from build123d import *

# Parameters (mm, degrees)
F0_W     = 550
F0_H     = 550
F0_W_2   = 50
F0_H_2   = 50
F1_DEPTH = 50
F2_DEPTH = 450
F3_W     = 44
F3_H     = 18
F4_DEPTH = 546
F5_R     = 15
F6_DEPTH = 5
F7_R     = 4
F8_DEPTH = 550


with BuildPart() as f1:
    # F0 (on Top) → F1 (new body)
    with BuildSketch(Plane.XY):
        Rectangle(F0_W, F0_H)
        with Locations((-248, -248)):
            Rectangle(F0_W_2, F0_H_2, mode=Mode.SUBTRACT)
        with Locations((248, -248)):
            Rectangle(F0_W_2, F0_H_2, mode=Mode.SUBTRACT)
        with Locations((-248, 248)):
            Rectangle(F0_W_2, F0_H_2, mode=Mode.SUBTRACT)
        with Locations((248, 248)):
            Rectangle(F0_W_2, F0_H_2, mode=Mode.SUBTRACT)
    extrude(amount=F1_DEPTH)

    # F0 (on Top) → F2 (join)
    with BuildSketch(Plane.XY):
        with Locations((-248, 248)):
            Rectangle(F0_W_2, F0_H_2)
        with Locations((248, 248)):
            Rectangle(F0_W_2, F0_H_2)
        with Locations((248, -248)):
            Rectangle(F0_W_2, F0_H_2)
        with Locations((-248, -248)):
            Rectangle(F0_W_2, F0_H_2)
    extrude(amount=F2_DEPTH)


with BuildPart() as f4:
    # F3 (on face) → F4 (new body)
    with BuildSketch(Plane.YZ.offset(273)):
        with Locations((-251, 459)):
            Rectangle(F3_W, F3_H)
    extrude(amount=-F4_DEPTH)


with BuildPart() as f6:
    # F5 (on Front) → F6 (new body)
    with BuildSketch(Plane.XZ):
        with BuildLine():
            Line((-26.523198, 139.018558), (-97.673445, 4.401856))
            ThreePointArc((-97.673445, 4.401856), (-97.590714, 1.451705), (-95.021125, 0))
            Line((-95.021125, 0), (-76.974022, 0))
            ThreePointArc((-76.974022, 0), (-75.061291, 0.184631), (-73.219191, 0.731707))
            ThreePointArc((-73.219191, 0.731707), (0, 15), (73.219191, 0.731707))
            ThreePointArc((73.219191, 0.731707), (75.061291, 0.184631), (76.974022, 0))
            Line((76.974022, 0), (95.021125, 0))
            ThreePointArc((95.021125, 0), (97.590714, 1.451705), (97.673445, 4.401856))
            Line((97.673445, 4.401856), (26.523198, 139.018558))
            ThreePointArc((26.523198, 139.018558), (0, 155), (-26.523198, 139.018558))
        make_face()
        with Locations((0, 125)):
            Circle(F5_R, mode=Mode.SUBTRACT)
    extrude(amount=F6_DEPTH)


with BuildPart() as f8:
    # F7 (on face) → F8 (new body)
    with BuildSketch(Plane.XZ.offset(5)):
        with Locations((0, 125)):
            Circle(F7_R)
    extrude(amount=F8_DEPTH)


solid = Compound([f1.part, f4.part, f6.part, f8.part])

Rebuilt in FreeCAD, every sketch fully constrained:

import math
import FreeCAD as App
import Part
import Sketcher

V = App.Vector

doc = App.newDocument("Part")
body = doc.addObject("PartDesign::Body", "Body")

sketch1 = doc.addObject("Sketcher::SketchObject", "Sketch")
body.addObject(sketch1)
sketch1.AttachmentSupport = (doc.XY_Plane, [""])
sketch1.MapMode = "FlatFace"
sketch1.addGeometry(Part.LineSegment(V(-275, 275, 0), V(-275, -275, 0)), False)
sketch1.addGeometry(Part.LineSegment(V(-275, -275, 0), V(275, -275, 0)), False)
sketch1.addGeometry(Part.LineSegment(V(275, -275, 0), V(275, 275, 0)), False)
sketch1.addGeometry(Part.LineSegment(V(275, 275, 0), V(-275, 275, 0)), False)
sketch1.addGeometry(Part.LineSegment(V(-223, -273, 0), V(-273, -273, 0)), False)
sketch1.addGeometry(Part.LineSegment(V(-273, -273, 0), V(-273, -223, 0)), False)
sketch1.addGeometry(Part.LineSegment(V(-273, -223, 0), V(-223, -223, 0)), False)
sketch1.addGeometry(Part.LineSegment(V(-223, -223, 0), V(-223, -273, 0)), False)
sketch1.addGeometry(Part.LineSegment(V(273, -273, 0), V(223, -273, 0)), False)
sketch1.addGeometry(Part.LineSegment(V(223, -273, 0), V(223, -223, 0)), False)
sketch1.addGeometry(Part.LineSegment(V(223, -223, 0), V(273, -223, 0)), False)
sketch1.addGeometry(Part.LineSegment(V(273, -223, 0), V(273, -273, 0)), False)
sketch1.addGeometry(Part.LineSegment(V(-223, 223, 0), V(-273, 223, 0)), False)
sketch1.addGeometry(Part.LineSegment(V(-273, 223, 0), V(-273, 273, 0)), False)
sketch1.addGeometry(Part.LineSegment(V(-273, 273, 0), V(-223, 273, 0)), False)
sketch1.addGeometry(Part.LineSegment(V(-223, 273, 0), V(-223, 223, 0)), False)
sketch1.addGeometry(Part.LineSegment(V(273, 223, 0), V(223, 223, 0)), False)
sketch1.addGeometry(Part.LineSegment(V(223, 223, 0), V(223, 273, 0)), False)
sketch1.addGeometry(Part.LineSegment(V(223, 273, 0), V(273, 273, 0)), False)
sketch1.addGeometry(Part.LineSegment(V(273, 273, 0), V(273, 223, 0)), False)
sketch1.addConstraint(Sketcher.Constraint("Coincident", 0, 2, 1, 1))
sketch1.addConstraint(Sketcher.Constraint("Coincident", 1, 2, 2, 1))
sketch1.addConstraint(Sketcher.Constraint("Coincident", 2, 2, 3, 1))
sketch1.addConstraint(Sketcher.Constraint("Coincident", 3, 2, 0, 1))
sketch1.addConstraint(Sketcher.Constraint("Coincident", 4, 2, 5, 1))
sketch1.addConstraint(Sketcher.Constraint("Coincident", 5, 2, 6, 1))
sketch1.addConstraint(Sketcher.Constraint("Coincident", 6, 2, 7, 1))
sketch1.addConstraint(Sketcher.Constraint("Coincident", 7, 2, 4, 1))
sketch1.addConstraint(Sketcher.Constraint("Coincident", 8, 2, 9, 1))
sketch1.addConstraint(Sketcher.Constraint("Coincident", 9, 2, 10, 1))
sketch1.addConstraint(Sketcher.Constraint("Coincident", 10, 2, 11, 1))
sketch1.addConstraint(Sketcher.Constraint("Coincident", 11, 2, 8, 1))
sketch1.addConstraint(Sketcher.Constraint("Coincident", 12, 2, 13, 1))
sketch1.addConstraint(Sketcher.Constraint("Coincident", 13, 2, 14, 1))
sketch1.addConstraint(Sketcher.Constraint("Coincident", 14, 2, 15, 1))
sketch1.addConstraint(Sketcher.Constraint("Coincident", 15, 2, 12, 1))
sketch1.addConstraint(Sketcher.Constraint("Coincident", 16, 2, 17, 1))
sketch1.addConstraint(Sketcher.Constraint("Coincident", 17, 2, 18, 1))
sketch1.addConstraint(Sketcher.Constraint("Coincident", 18, 2, 19, 1))
sketch1.addConstraint(Sketcher.Constraint("Coincident", 19, 2, 16, 1))
sketch1.addConstraint(Sketcher.Constraint("Vertical", 0))
sketch1.addConstraint(Sketcher.Constraint("Horizontal", 1))
sketch1.addConstraint(Sketcher.Constraint("Vertical", 2))
sketch1.addConstraint(Sketcher.Constraint("Horizontal", 3))
sketch1.addConstraint(Sketcher.Constraint("Horizontal", 4))
sketch1.addConstraint(Sketcher.Constraint("Vertical", 5))
sketch1.addConstraint(Sketcher.Constraint("Horizontal", 6))
sketch1.addConstraint(Sketcher.Constraint("Vertical", 7))
sketch1.addConstraint(Sketcher.Constraint("Horizontal", 8))
sketch1.addConstraint(Sketcher.Constraint("Vertical", 9))
sketch1.addConstraint(Sketcher.Constraint("Horizontal", 10))
sketch1.addConstraint(Sketcher.Constraint("Vertical", 11))
sketch1.addConstraint(Sketcher.Constraint("Horizontal", 12))
sketch1.addConstraint(Sketcher.Constraint("Vertical", 13))
sketch1.addConstraint(Sketcher.Constraint("Horizontal", 14))
sketch1.addConstraint(Sketcher.Constraint("Vertical", 15))
sketch1.addConstraint(Sketcher.Constraint("Horizontal", 16))
sketch1.addConstraint(Sketcher.Constraint("Vertical", 17))
sketch1.addConstraint(Sketcher.Constraint("Horizontal", 18))
sketch1.addConstraint(Sketcher.Constraint("Vertical", 19))
sketch1.addConstraint(Sketcher.Constraint("Symmetric", 0, 2, 2, 2, -1, 1))
sketch1.addConstraint(Sketcher.Constraint("Symmetric", 10, 2, 12, 2, -1, 1))
sketch1.addConstraint(Sketcher.Constraint("Symmetric", 8, 2, 14, 2, -1, 1))
sketch1.addConstraint(Sketcher.Constraint("Symmetric", 6, 2, 16, 2, -1, 1))
sketch1.addConstraint(Sketcher.Constraint("Symmetric", 4, 2, 18, 2, -1, 1))
sketch1.addConstraint(Sketcher.Constraint("Symmetric", 7, 2, 8, 2, -2))
sketch1.addConstraint(Sketcher.Constraint("Symmetric", 5, 2, 10, 2, -2))
sketch1.addConstraint(Sketcher.Constraint("Equal", 3, 0))
sketch1.addConstraint(Sketcher.Constraint("Equal", 18, 5))
sketch1.addConstraint(Sketcher.Constraint("DistanceX", 1, 1, 1, 2, 550.0))
sketch1.addConstraint(Sketcher.Constraint("DistanceX", 4, 2, 4, 1, 50.0))
sketch1.addConstraint(Sketcher.Constraint("DistanceX", 4, 2, -1, 1, 273.0))
sketch1.addConstraint(Sketcher.Constraint("DistanceY", 4, 2, -1, 1, 273.0))
pad1 = doc.addObject("PartDesign::Pad", "Pad")
body.addObject(pad1)
pad1.Profile = sketch1
pad1.Length = 50

sketch2 = doc.addObject("Sketcher::SketchObject", "Sketch001")
body.addObject(sketch2)
sketch2.AttachmentSupport = (doc.XY_Plane, [""])
sketch2.MapMode = "FlatFace"
sketch2.addGeometry(Part.LineSegment(V(-273, 273, 0), V(-273, 223, 0)), False)
sketch2.addGeometry(Part.LineSegment(V(-273, 223, 0), V(-223, 223, 0)), False)
sketch2.addGeometry(Part.LineSegment(V(-223, 223, 0), V(-223, 273, 0)), False)
sketch2.addGeometry(Part.LineSegment(V(-223, 273, 0), V(-273, 273, 0)), False)
sketch2.addGeometry(Part.LineSegment(V(223, 273, 0), V(223, 223, 0)), False)
sketch2.addGeometry(Part.LineSegment(V(223, 223, 0), V(273, 223, 0)), False)
sketch2.addGeometry(Part.LineSegment(V(273, 223, 0), V(273, 273, 0)), False)
sketch2.addGeometry(Part.LineSegment(V(273, 273, 0), V(223, 273, 0)), False)
sketch2.addGeometry(Part.LineSegment(V(223, -223, 0), V(223, -273, 0)), False)
sketch2.addGeometry(Part.LineSegment(V(223, -273, 0), V(273, -273, 0)), False)
sketch2.addGeometry(Part.LineSegment(V(273, -273, 0), V(273, -223, 0)), False)
sketch2.addGeometry(Part.LineSegment(V(273, -223, 0), V(223, -223, 0)), False)
sketch2.addGeometry(Part.LineSegment(V(-273, -223, 0), V(-273, -273, 0)), False)
sketch2.addGeometry(Part.LineSegment(V(-273, -273, 0), V(-223, -273, 0)), False)
sketch2.addGeometry(Part.LineSegment(V(-223, -273, 0), V(-223, -223, 0)), False)
sketch2.addGeometry(Part.LineSegment(V(-223, -223, 0), V(-273, -223, 0)), False)
sketch2.addConstraint(Sketcher.Constraint("Coincident", 0, 2, 1, 1))
sketch2.addConstraint(Sketcher.Constraint("Coincident", 1, 2, 2, 1))
sketch2.addConstraint(Sketcher.Constraint("Coincident", 2, 2, 3, 1))
sketch2.addConstraint(Sketcher.Constraint("Coincident", 3, 2, 0, 1))
sketch2.addConstraint(Sketcher.Constraint("Coincident", 4, 2, 5, 1))
sketch2.addConstraint(Sketcher.Constraint("Coincident", 5, 2, 6, 1))
sketch2.addConstraint(Sketcher.Constraint("Coincident", 6, 2, 7, 1))
sketch2.addConstraint(Sketcher.Constraint("Coincident", 7, 2, 4, 1))
sketch2.addConstraint(Sketcher.Constraint("Coincident", 8, 2, 9, 1))
sketch2.addConstraint(Sketcher.Constraint("Coincident", 9, 2, 10, 1))
sketch2.addConstraint(Sketcher.Constraint("Coincident", 10, 2, 11, 1))
sketch2.addConstraint(Sketcher.Constraint("Coincident", 11, 2, 8, 1))
sketch2.addConstraint(Sketcher.Constraint("Coincident", 12, 2, 13, 1))
sketch2.addConstraint(Sketcher.Constraint("Coincident", 13, 2, 14, 1))
sketch2.addConstraint(Sketcher.Constraint("Coincident", 14, 2, 15, 1))
sketch2.addConstraint(Sketcher.Constraint("Coincident", 15, 2, 12, 1))
sketch2.addConstraint(Sketcher.Constraint("Vertical", 0))
sketch2.addConstraint(Sketcher.Constraint("Horizontal", 1))
sketch2.addConstraint(Sketcher.Constraint("Vertical", 2))
sketch2.addConstraint(Sketcher.Constraint("Horizontal", 3))
sketch2.addConstraint(Sketcher.Constraint("Vertical", 4))
sketch2.addConstraint(Sketcher.Constraint("Horizontal", 5))
sketch2.addConstraint(Sketcher.Constraint("Vertical", 6))
sketch2.addConstraint(Sketcher.Constraint("Horizontal", 7))
sketch2.addConstraint(Sketcher.Constraint("Vertical", 8))
sketch2.addConstraint(Sketcher.Constraint("Horizontal", 9))
sketch2.addConstraint(Sketcher.Constraint("Vertical", 10))
sketch2.addConstraint(Sketcher.Constraint("Horizontal", 11))
sketch2.addConstraint(Sketcher.Constraint("Vertical", 12))
sketch2.addConstraint(Sketcher.Constraint("Horizontal", 13))
sketch2.addConstraint(Sketcher.Constraint("Vertical", 14))
sketch2.addConstraint(Sketcher.Constraint("Horizontal", 15))
sketch2.addConstraint(Sketcher.Constraint("Symmetric", 2, 2, 8, 2, -1, 1))
sketch2.addConstraint(Sketcher.Constraint("Symmetric", 0, 2, 10, 2, -1, 1))
sketch2.addConstraint(Sketcher.Constraint("Symmetric", 6, 2, 12, 2, -1, 1))
sketch2.addConstraint(Sketcher.Constraint("Symmetric", 4, 2, 14, 2, -1, 1))
sketch2.addConstraint(Sketcher.Constraint("Symmetric", 1, 2, 4, 2, -2))
sketch2.addConstraint(Sketcher.Constraint("Symmetric", 3, 2, 6, 2, -2))
sketch2.addConstraint(Sketcher.Constraint("Equal", 15, 0))
sketch2.addConstraint(Sketcher.Constraint("DistanceX", 1, 1, 1, 2, 50.0))
sketch2.addConstraint(Sketcher.Constraint("DistanceX", 0, 2, -1, 1, 273.0))
sketch2.addConstraint(Sketcher.Constraint("DistanceY", -1, 1, 0, 2, 223.0))
pad2 = doc.addObject("PartDesign::Pad", "Pad001")
body.addObject(pad2)
pad2.Profile = sketch2
pad2.Length = 450
body2 = doc.addObject("PartDesign::Body", "Body001")

sketch3 = doc.addObject("Sketcher::SketchObject", "Sketch002")
body2.addObject(sketch3)
sketch3.AttachmentSupport = (doc.getObject("YZ_Plane001"), [""])
sketch3.MapMode = "FlatFace"
sketch3.AttachmentOffset = App.Placement(V(0, 0, 273), App.Rotation())
sketch3.addGeometry(Part.LineSegment(V(-273, 468, 0), V(-273, 450, 0)), False)
sketch3.addGeometry(Part.LineSegment(V(-273, 450, 0), V(-229, 450, 0)), False)
sketch3.addGeometry(Part.LineSegment(V(-229, 450, 0), V(-229, 468, 0)), False)
sketch3.addGeometry(Part.LineSegment(V(-229, 468, 0), V(-273, 468, 0)), False)
sketch3.addConstraint(Sketcher.Constraint("Coincident", 0, 2, 1, 1))
sketch3.addConstraint(Sketcher.Constraint("Coincident", 1, 2, 2, 1))
sketch3.addConstraint(Sketcher.Constraint("Coincident", 2, 2, 3, 1))
sketch3.addConstraint(Sketcher.Constraint("Coincident", 3, 2, 0, 1))
sketch3.addConstraint(Sketcher.Constraint("Vertical", 0))
sketch3.addConstraint(Sketcher.Constraint("Horizontal", 1))
sketch3.addConstraint(Sketcher.Constraint("Vertical", 2))
sketch3.addConstraint(Sketcher.Constraint("Horizontal", 3))
sketch3.addConstraint(Sketcher.Constraint("DistanceX", 1, 1, 1, 2, 44.0))
sketch3.addConstraint(Sketcher.Constraint("DistanceY", 0, 2, 0, 1, 18.0))
sketch3.addConstraint(Sketcher.Constraint("DistanceX", 0, 2, -1, 1, 273.0))
sketch3.addConstraint(Sketcher.Constraint("DistanceY", -1, 1, 0, 2, 450.0))
pad3 = doc.addObject("PartDesign::Pad", "Pad002")
body2.addObject(pad3)
pad3.Profile = sketch3
pad3.Length = 546
pad3.Reversed = True
body3 = doc.addObject("PartDesign::Body", "Body002")

sketch4 = doc.addObject("Sketcher::SketchObject", "Sketch003")
body3.addObject(sketch4)
sketch4.AttachmentSupport = (doc.getObject("XZ_Plane002"), [""])
sketch4.MapMode = "FlatFace"
sketch4.addGeometry(Part.LineSegment(V(-26.523198, 139.018558, 0), V(-97.673445, 4.401856, 0)), False)
sketch4.addGeometry(Part.ArcOfCircle(Part.Circle(V(-95.021126, 2.999999, 0), V(0, 0, 1), 2.999999), math.radians(152.141755), math.radians(270.000025)), False)
sketch4.addGeometry(Part.LineSegment(V(-95.021125, 0, 0), V(-76.974022, 0, 0)), False)
sketch4.addGeometry(Part.ArcOfCircle(Part.Circle(V(-76.974019, 9.999992, 0), V(0, 0, 1), 9.999992), math.radians(-90.000017), math.radians(-67.945826)), False)
sketch4.addGeometry(Part.ArcOfCircle(Part.Circle(V(0, -179.999995, 0), V(0, 0, 1), 194.999995), math.radians(67.945829), math.radians(112.054171)), False)
sketch4.addGeometry(Part.ArcOfCircle(Part.Circle(V(76.974019, 9.999992, 0), V(0, 0, 1), 9.999992), math.radians(-112.054174), math.radians(-89.999983)), False)
sketch4.addGeometry(Part.LineSegment(V(76.974022, 0, 0), V(95.021125, 0, 0)), False)
sketch4.addGeometry(Part.ArcOfCircle(Part.Circle(V(95.021126, 2.999999, 0), V(0, 0, 1), 2.999999), math.radians(-90.000025), math.radians(27.858245)), False)
sketch4.addGeometry(Part.LineSegment(V(97.673445, 4.401856, 0), V(26.523198, 139.018558, 0)), False)
sketch4.addGeometry(Part.ArcOfCircle(Part.Circle(V(0, 125, 0), V(0, 0, 1), 30), math.radians(27.858221), math.radians(152.141779)), False)
sketch4.addGeometry(Part.Circle(V(0, 125, 0), V(0, 0, 1), 15), False)
sketch4.addConstraint(Sketcher.Constraint("Tangent", 0, 2, 1, 1))
sketch4.addConstraint(Sketcher.Constraint("Tangent", 1, 2, 2, 1))
sketch4.addConstraint(Sketcher.Constraint("Tangent", 2, 2, 3, 1))
sketch4.addConstraint(Sketcher.Constraint("Tangent", 3, 2, 4, 2))
sketch4.addConstraint(Sketcher.Constraint("Tangent", 4, 1, 5, 1))
sketch4.addConstraint(Sketcher.Constraint("Tangent", 5, 2, 6, 1))
sketch4.addConstraint(Sketcher.Constraint("Tangent", 6, 2, 7, 1))
sketch4.addConstraint(Sketcher.Constraint("Tangent", 7, 2, 8, 1))
sketch4.addConstraint(Sketcher.Constraint("Tangent", 8, 2, 9, 1))
sketch4.addConstraint(Sketcher.Constraint("Tangent", 9, 2, 0, 1))
sketch4.addConstraint(Sketcher.Constraint("Horizontal", 2))
sketch4.addConstraint(Sketcher.Constraint("Horizontal", 6))
sketch4.addConstraint(Sketcher.Constraint("Coincident", 10, 3, 9, 3))
sketch4.addConstraint(Sketcher.Constraint("Equal", 3, 5))
sketch4.addConstraint(Sketcher.Constraint("Equal", 1, 7))
sketch4.addConstraint(Sketcher.Constraint("Symmetric", 2, 2, 5, 2, -1, 1))
sketch4.addConstraint(Sketcher.Constraint("Symmetric", 1, 3, 7, 3, -2))
sketch4.addConstraint(Sketcher.Constraint("PointOnObject", 9, 3, -2))
sketch4.addConstraint(Sketcher.Constraint("Diameter", 10, 30.0))
sketch4.addConstraint(Sketcher.Constraint("Radius", 1, 2.999999))
sketch4.addConstraint(Sketcher.Constraint("Radius", 9, 30.0))
sketch4.addConstraint(Sketcher.Constraint("DistanceY", -1, 1, 9, 3, 125.0))
sketch4.addConstraint(Sketcher.Constraint("Radius", 3, 9.999992))
sketch4.addConstraint(Sketcher.Constraint("Radius", 4, 194.999995))
sketch4.addConstraint(Sketcher.Constraint("DistanceX", -1, 1, 8, 2, 26.523198))
sketch4.addConstraint(Sketcher.Constraint("DistanceX", 2, 1, 2, 2, 18.047103))
pad4 = doc.addObject("PartDesign::Pad", "Pad003")
body3.addObject(pad4)
pad4.Profile = sketch4
pad4.Length = 5
body4 = doc.addObject("PartDesign::Body", "Body003")

sketch5 = doc.addObject("Sketcher::SketchObject", "Sketch004")
body4.addObject(sketch5)
sketch5.AttachmentSupport = (doc.getObject("XZ_Plane003"), [""])
sketch5.MapMode = "FlatFace"
sketch5.AttachmentOffset = App.Placement(V(0, 0, 5), App.Rotation())
sketch5.addGeometry(Part.Circle(V(0, 125, 0), V(0, 0, 1), 4), False)
sketch5.addConstraint(Sketcher.Constraint("PointOnObject", 0, 3, -2))
sketch5.addConstraint(Sketcher.Constraint("Diameter", 0, 8.0))
sketch5.addConstraint(Sketcher.Constraint("DistanceY", -1, 1, 0, 3, 125.0))
pad5 = doc.addObject("PartDesign::Pad", "Pad004")
body4.addObject(pad5)
pad5.Profile = sketch5
pad5.Length = 550

doc.recompute()
